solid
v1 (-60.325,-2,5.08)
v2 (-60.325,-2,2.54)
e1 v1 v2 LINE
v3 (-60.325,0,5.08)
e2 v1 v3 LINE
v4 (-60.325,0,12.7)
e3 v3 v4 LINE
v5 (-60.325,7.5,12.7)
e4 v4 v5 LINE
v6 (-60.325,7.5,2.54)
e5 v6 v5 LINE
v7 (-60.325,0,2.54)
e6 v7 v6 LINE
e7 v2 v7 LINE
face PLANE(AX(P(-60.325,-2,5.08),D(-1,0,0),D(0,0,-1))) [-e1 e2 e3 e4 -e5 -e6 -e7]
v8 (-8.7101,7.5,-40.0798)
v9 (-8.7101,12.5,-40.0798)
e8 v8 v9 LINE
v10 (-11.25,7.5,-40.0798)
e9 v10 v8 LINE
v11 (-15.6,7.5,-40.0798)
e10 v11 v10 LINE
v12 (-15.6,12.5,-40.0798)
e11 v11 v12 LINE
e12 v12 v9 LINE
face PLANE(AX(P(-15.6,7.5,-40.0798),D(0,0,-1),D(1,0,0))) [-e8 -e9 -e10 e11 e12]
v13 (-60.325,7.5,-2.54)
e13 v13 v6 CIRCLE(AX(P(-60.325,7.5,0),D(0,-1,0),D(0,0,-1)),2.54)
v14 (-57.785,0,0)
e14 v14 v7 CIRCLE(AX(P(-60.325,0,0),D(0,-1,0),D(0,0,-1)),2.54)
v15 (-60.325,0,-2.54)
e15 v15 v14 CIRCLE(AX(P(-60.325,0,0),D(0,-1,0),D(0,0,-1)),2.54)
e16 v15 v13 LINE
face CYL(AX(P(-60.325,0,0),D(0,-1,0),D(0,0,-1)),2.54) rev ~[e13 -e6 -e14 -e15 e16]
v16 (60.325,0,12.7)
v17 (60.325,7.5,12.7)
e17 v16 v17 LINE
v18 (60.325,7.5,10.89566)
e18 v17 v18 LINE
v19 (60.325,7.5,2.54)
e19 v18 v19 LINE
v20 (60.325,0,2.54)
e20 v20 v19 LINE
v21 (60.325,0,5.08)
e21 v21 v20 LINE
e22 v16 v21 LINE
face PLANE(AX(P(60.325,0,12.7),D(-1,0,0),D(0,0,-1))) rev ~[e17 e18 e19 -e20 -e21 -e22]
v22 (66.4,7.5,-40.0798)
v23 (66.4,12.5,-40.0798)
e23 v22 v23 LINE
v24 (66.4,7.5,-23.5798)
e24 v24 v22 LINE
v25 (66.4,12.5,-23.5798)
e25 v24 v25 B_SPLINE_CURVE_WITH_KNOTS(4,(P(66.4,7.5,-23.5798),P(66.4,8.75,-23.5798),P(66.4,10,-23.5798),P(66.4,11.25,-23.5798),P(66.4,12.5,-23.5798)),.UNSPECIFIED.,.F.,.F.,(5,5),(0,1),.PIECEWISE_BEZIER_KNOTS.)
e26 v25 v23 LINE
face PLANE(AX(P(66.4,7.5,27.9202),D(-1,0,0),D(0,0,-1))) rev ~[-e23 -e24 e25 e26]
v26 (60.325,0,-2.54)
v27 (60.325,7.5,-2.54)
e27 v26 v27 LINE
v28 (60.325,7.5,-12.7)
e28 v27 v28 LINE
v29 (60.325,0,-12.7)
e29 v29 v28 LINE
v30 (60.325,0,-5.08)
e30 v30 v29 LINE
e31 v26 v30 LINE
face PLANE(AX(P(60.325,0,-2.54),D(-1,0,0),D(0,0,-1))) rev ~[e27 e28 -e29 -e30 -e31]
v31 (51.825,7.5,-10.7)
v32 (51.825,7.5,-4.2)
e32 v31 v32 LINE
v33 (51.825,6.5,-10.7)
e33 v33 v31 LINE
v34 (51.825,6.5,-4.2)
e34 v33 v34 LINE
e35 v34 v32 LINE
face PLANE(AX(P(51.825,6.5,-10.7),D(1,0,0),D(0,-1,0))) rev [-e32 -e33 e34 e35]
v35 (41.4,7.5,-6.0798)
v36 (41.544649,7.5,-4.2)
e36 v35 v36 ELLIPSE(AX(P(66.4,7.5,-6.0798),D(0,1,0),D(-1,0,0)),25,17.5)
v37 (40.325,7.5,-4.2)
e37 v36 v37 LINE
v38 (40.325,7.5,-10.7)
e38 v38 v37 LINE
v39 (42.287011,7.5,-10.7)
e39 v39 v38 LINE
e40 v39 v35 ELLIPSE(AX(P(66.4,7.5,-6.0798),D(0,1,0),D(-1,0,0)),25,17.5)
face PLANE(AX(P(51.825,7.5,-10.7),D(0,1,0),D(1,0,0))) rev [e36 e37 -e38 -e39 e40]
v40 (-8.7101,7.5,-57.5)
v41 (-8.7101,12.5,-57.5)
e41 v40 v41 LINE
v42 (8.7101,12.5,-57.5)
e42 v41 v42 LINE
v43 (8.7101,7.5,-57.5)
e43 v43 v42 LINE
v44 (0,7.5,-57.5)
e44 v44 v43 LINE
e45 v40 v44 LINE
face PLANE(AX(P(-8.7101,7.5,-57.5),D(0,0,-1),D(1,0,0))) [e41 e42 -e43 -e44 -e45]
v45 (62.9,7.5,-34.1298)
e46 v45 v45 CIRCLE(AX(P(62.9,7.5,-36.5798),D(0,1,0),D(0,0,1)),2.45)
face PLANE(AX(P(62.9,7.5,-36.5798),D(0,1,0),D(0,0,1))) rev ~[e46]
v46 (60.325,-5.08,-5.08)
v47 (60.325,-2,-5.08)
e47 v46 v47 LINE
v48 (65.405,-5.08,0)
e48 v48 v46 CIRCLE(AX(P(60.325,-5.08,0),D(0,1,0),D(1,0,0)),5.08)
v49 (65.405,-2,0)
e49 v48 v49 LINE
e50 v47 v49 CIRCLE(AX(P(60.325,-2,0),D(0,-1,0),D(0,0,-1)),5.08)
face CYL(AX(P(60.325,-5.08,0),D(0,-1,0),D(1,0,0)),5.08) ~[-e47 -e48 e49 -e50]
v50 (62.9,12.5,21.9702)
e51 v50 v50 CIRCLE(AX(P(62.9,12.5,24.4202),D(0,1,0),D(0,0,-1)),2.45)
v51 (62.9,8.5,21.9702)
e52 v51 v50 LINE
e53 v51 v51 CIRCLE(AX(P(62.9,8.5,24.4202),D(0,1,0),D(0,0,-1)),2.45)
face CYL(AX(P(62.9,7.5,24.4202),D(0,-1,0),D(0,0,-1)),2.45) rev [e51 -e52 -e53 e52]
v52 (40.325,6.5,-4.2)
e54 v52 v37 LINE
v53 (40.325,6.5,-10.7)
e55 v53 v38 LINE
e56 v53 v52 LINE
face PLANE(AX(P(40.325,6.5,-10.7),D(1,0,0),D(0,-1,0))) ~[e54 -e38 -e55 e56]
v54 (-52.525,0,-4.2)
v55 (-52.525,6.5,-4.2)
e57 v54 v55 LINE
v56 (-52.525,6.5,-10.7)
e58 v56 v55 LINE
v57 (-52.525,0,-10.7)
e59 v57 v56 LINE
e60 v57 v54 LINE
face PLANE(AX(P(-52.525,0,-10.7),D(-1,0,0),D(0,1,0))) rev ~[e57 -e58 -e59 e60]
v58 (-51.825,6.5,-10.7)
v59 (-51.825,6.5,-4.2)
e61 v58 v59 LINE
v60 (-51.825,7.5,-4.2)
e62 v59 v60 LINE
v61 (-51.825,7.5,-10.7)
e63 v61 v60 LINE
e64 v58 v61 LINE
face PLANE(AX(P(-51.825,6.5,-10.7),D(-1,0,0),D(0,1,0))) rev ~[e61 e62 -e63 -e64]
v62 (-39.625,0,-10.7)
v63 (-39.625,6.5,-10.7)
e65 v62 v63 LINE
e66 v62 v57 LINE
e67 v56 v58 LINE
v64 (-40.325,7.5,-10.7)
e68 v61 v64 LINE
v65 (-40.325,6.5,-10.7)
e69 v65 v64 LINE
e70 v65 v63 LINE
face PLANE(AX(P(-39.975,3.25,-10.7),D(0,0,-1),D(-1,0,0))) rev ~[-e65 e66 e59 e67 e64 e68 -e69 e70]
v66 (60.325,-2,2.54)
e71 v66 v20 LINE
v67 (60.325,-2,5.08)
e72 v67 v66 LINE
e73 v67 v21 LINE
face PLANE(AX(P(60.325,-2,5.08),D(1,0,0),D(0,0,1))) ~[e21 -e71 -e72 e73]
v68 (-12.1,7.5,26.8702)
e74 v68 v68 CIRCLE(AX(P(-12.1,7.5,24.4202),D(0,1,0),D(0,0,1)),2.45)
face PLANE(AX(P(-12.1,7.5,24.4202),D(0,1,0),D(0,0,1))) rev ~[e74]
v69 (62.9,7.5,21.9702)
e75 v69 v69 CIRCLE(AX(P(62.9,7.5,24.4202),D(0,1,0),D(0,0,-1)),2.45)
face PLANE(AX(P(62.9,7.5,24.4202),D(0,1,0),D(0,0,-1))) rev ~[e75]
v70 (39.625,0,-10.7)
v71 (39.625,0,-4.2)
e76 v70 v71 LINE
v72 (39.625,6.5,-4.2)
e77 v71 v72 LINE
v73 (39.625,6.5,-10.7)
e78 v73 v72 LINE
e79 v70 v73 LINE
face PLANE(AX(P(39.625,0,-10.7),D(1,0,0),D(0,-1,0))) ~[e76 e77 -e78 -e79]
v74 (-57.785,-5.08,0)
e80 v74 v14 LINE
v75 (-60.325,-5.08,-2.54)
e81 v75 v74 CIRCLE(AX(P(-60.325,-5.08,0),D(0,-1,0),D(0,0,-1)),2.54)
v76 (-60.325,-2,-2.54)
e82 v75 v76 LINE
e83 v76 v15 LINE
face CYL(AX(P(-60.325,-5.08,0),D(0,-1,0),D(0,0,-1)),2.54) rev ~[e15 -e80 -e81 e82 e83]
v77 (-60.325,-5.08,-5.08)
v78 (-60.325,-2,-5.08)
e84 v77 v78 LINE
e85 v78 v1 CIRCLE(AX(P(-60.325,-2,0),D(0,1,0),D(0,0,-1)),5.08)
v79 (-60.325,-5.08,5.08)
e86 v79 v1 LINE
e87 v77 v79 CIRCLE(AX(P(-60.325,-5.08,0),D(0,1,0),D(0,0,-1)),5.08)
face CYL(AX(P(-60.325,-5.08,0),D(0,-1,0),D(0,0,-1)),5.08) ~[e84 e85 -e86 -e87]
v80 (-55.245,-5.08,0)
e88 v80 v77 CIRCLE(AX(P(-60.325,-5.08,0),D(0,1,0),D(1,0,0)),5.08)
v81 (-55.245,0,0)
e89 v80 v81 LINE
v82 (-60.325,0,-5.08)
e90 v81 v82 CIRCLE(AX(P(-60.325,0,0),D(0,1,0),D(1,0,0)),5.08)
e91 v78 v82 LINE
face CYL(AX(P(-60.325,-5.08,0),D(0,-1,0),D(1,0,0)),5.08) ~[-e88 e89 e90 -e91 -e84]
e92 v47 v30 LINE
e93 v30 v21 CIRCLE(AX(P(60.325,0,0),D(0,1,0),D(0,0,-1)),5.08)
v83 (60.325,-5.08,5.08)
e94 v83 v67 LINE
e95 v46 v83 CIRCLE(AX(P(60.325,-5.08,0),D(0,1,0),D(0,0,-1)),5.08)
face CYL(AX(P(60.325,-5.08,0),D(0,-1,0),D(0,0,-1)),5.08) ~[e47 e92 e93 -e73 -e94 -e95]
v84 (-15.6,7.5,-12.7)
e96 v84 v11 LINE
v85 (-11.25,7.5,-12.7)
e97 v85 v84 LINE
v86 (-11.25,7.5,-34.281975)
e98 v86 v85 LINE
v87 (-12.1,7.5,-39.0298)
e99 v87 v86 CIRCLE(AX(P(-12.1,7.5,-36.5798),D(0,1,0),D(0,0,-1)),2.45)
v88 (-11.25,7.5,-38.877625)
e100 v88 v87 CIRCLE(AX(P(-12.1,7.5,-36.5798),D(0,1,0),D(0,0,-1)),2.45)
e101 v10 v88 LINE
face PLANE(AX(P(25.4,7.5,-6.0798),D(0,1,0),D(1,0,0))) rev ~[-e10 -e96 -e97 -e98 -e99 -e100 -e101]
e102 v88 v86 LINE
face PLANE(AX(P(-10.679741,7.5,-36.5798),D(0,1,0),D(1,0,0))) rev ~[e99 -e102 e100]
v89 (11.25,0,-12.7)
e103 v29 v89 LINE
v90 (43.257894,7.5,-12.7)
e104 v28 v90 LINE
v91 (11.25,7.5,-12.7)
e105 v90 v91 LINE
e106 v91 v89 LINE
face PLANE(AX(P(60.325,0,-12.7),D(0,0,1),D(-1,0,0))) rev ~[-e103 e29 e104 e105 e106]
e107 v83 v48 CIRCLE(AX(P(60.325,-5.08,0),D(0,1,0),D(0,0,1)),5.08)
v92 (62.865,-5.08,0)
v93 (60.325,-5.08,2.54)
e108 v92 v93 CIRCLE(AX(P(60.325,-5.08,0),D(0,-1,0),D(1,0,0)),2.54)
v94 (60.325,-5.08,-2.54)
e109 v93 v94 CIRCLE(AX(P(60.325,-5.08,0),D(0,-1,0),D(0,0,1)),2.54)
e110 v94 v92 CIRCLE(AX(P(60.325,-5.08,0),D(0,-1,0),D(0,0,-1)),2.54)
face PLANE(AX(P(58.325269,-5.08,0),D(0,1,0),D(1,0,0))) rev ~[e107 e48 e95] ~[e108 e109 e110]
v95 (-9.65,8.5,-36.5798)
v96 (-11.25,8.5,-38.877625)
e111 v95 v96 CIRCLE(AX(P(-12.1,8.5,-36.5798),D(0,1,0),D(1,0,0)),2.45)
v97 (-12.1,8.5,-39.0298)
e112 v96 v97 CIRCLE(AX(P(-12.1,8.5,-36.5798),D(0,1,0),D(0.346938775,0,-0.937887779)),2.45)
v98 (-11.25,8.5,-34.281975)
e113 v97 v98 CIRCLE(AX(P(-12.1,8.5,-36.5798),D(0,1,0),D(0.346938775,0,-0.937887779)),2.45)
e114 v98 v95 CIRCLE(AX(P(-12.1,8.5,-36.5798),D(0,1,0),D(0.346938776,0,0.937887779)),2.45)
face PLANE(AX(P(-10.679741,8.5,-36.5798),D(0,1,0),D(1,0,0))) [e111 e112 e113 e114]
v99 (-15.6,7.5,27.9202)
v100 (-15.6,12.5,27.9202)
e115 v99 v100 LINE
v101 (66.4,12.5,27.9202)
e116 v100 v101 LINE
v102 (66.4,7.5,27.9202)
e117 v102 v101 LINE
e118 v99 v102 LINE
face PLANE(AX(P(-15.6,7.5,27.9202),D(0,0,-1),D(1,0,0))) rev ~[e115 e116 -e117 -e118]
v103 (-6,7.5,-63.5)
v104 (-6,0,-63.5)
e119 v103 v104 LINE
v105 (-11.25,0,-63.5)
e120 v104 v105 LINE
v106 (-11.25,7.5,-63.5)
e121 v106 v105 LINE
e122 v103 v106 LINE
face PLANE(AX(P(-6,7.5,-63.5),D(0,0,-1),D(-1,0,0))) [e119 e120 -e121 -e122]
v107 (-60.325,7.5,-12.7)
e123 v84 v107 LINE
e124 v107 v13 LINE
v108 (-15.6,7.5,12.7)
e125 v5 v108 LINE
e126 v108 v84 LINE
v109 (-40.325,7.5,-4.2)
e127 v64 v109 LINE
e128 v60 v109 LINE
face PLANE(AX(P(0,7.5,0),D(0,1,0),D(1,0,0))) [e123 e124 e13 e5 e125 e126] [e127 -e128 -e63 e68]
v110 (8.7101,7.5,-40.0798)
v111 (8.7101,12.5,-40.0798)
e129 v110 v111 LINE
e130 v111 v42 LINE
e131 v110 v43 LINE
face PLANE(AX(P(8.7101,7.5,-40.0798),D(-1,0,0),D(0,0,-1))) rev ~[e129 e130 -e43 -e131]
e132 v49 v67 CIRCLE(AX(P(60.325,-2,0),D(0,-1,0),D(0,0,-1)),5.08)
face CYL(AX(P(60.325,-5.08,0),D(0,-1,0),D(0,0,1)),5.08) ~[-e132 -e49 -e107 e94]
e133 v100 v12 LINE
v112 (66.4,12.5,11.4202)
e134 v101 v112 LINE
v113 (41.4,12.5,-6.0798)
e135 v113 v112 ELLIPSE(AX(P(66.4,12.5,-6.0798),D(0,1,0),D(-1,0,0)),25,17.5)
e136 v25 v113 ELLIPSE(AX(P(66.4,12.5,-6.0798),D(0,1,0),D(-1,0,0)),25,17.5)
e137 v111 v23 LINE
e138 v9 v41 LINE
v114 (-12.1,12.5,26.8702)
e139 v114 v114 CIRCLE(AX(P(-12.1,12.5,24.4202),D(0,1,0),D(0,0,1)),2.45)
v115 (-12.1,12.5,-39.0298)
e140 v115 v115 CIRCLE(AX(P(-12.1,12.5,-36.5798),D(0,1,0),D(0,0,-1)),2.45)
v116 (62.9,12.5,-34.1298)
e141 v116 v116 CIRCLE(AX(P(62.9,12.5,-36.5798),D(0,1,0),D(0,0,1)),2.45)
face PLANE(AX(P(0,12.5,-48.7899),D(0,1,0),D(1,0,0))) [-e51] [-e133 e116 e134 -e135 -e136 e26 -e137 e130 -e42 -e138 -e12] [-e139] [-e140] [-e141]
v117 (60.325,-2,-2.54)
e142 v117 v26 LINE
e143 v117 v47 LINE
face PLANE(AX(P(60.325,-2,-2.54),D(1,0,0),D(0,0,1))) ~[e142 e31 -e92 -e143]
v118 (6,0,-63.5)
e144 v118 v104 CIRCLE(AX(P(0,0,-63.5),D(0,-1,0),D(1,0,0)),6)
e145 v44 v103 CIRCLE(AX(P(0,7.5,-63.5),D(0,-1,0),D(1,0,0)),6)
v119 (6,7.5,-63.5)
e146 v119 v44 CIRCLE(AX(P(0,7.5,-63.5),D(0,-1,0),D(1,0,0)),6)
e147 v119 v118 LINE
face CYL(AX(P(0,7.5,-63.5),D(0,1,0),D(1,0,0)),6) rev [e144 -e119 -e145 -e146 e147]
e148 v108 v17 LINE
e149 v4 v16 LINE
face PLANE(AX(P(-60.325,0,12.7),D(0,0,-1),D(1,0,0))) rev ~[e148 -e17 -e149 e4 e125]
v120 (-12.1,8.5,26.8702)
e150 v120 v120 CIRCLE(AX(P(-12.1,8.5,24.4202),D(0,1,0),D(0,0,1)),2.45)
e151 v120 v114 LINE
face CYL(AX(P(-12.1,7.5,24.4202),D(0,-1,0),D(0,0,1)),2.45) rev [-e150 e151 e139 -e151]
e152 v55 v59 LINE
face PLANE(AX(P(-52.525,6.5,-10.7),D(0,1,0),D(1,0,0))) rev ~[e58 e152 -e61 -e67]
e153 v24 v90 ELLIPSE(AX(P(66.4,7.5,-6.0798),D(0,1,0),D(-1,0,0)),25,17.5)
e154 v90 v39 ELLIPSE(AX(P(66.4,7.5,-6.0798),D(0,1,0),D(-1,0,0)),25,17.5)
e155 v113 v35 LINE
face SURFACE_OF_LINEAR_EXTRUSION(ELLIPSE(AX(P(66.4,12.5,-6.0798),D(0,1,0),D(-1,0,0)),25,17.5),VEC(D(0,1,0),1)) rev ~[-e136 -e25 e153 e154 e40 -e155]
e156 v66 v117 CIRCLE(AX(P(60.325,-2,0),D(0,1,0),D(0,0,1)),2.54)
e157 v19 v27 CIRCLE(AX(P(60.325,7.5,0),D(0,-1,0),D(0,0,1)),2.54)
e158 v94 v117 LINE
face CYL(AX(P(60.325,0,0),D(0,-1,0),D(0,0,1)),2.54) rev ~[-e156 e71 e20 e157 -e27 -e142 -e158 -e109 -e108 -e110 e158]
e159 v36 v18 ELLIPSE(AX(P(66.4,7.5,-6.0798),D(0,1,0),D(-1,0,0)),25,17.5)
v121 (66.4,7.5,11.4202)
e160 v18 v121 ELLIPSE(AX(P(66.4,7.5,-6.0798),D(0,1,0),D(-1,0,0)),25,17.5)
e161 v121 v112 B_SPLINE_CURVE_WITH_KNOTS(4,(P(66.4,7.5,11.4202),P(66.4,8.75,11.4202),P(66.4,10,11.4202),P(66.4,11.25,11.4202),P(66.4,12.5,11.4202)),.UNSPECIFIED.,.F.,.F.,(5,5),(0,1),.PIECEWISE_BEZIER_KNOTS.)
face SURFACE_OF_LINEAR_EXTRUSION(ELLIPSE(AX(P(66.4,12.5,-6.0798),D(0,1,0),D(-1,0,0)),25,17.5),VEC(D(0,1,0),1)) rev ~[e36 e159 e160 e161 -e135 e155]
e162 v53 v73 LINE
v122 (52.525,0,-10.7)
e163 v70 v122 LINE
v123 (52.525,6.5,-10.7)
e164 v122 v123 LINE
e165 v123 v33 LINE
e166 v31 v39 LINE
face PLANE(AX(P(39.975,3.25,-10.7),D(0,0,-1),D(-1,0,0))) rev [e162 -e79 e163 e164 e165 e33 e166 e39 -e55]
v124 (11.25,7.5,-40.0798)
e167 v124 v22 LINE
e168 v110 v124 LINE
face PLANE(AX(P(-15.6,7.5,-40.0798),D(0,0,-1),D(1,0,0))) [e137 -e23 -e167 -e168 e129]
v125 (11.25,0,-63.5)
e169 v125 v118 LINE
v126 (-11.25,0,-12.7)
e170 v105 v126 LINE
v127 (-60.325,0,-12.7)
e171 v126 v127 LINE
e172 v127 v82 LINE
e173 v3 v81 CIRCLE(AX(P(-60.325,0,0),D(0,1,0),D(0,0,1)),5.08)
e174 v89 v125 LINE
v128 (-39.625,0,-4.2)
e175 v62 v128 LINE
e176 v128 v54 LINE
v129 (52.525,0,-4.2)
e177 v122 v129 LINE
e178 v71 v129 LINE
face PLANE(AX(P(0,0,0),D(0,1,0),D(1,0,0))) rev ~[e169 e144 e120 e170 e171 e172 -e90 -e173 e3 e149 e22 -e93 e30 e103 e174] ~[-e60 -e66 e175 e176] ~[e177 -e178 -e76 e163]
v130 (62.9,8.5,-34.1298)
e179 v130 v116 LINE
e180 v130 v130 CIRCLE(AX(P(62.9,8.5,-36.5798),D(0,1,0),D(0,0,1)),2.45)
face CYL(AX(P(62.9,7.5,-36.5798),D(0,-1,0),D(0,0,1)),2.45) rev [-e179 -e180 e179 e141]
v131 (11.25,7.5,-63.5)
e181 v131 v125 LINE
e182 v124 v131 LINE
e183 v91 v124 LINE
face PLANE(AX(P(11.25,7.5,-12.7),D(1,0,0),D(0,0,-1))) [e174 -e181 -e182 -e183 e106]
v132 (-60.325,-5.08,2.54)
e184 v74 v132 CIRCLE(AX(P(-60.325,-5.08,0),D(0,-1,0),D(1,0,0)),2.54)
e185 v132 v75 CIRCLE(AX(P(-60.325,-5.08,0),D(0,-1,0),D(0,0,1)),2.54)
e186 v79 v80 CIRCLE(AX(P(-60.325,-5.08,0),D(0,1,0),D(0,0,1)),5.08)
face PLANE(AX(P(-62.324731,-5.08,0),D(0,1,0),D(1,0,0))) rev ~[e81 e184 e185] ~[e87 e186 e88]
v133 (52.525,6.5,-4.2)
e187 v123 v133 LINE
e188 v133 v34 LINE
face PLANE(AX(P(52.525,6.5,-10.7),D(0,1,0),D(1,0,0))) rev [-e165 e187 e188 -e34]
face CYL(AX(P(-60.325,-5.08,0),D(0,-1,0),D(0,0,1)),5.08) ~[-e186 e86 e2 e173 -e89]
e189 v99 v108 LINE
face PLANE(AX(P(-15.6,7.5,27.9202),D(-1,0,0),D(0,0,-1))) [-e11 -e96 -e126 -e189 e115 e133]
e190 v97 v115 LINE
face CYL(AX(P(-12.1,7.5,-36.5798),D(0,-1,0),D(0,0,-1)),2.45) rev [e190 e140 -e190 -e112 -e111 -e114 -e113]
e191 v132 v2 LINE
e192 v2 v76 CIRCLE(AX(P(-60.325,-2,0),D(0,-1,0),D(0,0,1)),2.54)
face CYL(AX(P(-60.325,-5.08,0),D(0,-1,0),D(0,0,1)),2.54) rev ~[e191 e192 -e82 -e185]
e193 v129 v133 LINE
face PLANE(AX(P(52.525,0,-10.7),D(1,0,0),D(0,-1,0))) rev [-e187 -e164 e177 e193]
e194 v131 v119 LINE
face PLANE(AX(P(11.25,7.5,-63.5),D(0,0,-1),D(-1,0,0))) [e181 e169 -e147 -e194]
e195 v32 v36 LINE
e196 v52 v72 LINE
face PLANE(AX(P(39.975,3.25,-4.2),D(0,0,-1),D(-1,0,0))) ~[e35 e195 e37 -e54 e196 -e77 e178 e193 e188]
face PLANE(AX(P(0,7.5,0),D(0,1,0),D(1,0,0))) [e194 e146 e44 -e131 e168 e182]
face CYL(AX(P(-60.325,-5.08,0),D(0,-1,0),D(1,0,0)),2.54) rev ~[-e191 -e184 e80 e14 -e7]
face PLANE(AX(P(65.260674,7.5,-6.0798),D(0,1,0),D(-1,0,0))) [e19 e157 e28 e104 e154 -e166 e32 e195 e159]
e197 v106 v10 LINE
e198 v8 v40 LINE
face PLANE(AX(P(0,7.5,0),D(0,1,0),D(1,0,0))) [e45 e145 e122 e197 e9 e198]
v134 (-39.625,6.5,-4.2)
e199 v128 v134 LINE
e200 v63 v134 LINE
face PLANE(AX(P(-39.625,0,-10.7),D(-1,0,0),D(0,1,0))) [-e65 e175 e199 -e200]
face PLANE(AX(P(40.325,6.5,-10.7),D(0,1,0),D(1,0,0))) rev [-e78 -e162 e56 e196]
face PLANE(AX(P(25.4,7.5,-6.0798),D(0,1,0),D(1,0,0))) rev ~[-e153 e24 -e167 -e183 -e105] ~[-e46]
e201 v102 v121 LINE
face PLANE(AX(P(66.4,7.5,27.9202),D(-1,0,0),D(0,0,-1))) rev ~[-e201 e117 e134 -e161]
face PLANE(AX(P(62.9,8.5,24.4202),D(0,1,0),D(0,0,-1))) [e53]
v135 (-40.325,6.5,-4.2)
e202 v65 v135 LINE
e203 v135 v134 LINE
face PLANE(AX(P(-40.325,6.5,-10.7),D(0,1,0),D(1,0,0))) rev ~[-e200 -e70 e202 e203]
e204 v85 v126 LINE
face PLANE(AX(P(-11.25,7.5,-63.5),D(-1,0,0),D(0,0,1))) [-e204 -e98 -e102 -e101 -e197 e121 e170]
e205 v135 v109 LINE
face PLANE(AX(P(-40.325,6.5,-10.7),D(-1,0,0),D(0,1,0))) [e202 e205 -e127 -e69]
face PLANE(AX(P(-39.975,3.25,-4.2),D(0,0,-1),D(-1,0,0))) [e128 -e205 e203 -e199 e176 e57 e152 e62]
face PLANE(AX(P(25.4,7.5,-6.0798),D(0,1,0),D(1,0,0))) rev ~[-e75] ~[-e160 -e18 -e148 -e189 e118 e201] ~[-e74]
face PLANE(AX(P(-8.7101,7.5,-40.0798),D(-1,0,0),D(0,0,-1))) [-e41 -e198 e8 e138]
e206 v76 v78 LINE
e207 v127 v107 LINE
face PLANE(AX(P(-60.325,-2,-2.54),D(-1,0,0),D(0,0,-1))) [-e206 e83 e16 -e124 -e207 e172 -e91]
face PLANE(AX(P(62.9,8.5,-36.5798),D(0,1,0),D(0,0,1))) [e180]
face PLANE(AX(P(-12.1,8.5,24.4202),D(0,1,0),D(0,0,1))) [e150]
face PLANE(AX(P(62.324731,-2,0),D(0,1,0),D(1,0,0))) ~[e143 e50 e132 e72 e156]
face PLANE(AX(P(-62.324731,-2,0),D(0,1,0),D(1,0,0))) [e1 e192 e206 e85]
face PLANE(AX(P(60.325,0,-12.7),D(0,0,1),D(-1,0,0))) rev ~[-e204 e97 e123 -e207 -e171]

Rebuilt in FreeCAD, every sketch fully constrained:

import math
import FreeCAD as App
import Part
import Sketcher
Q = App.Units.Quantity

doc = App.newDocument("Part")
body = doc.addObject("PartDesign::Body", "Body")

sketch1 = body.newObject("Sketcher::SketchObject", "Sketch")
sketch1.AttachmentSupport = (doc.getObject("XZ_Plane"), [""])
sketch1.MapMode = "FlatFace"
sketch1.addGeometry([
    Part.LineSegment(App.Vector(-60.3, 12.7, 0), App.Vector(60.3, 12.7, 0)),
    Part.LineSegment(App.Vector(60.3, 12.7, 0), App.Vector(60.3, 2.5, 0)),
    Part.ArcOfCircle(Part.Circle(App.Vector(60.3, 0, 0), App.Vector(0, 0, 1), 2.5), math.radians(90), math.radians(270)),
    Part.LineSegment(App.Vector(60.3, -2.5, 0), App.Vector(60.3, -12.7, 0)),
    Part.LineSegment(App.Vector(60.3, -12.7, 0), App.Vector(-60.3, -12.7, 0)),
    Part.LineSegment(App.Vector(-60.3, -12.7, 0), App.Vector(-60.3, -2.5, 0)),
    Part.ArcOfCircle(Part.Circle(App.Vector(-60.3, 0, 0), App.Vector(0, 0, 1), 2.5), math.radians(-90), math.radians(90)),
    Part.LineSegment(App.Vector(-60.3, 2.5, 0), App.Vector(-60.3, 12.7, 0)),
], False)
sketch1.addConstraint([
    Sketcher.Constraint("Coincident", 0, 2, 1, 1),
    Sketcher.Constraint("Coincident", 1, 2, 2, 1),
    Sketcher.Constraint("Coincident", 2, 2, 3, 1),
    Sketcher.Constraint("Coincident", 3, 2, 4, 1),
    Sketcher.Constraint("Coincident", 4, 2, 5, 1),
    Sketcher.Constraint("Coincident", 5, 2, 6, 1),
    Sketcher.Constraint("Coincident", 6, 2, 7, 1),
    Sketcher.Constraint("Coincident", 7, 2, 0, 1),
    Sketcher.Constraint("Horizontal", 0),
    Sketcher.Constraint("Vertical", 1),
    Sketcher.Constraint("Vertical", 3),
    Sketcher.Constraint("Horizontal", 4),
    Sketcher.Constraint("Vertical", 5),
    Sketcher.Constraint("Vertical", 7),
    Sketcher.Constraint("Equal", 2, 6),
    Sketcher.Constraint("Symmetric", 2, 3, 6, 3, -1, 1),
    Sketcher.Constraint("Symmetric", 0, 2, 4, 2, -1, 1),
    Sketcher.Constraint("Symmetric", 2, 2, 5, 2, -2),
    Sketcher.Constraint("Vertical", 2, 3, 0, 2),
    Sketcher.Constraint("Vertical", 5, 2, 6, 2),
    Sketcher.Constraint("Radius", 2, Q("2.54 mm")),
    Sketcher.Constraint("DistanceX", 0, 1, 0, 2, Q("120.65 mm")),
    Sketcher.Constraint("DistanceY", 1, 2, 1, 1, Q("10.16 mm")),
])
pad1 = body.newObject("PartDesign::Pad", "Pad")
pad1.Profile = sketch1
pad1.Length = 7.5
pad1.Reversed = True

sketch2 = body.newObject("Sketcher::SketchObject", "Sketch001")
sketch2.AttachmentSupport = (doc.getObject("XZ_Plane"), [""])
sketch2.MapMode = "FlatFace"
sketch2.AttachmentOffset = App.Placement(App.Vector(0, 0, -7.5), App.Rotation())
sketch2.addGeometry([
    Part.LineSegment(App.Vector(-11, -64, 0), App.Vector(-11, -13, 0)),
    Part.LineSegment(App.Vector(-11, -13, 0), App.Vector(11, -13, 0)),
    Part.LineSegment(App.Vector(11, -13, 0), App.Vector(11, -64, 0)),
    Part.LineSegment(App.Vector(11, -64, 0), App.Vector(6, -64, 0)),
    Part.ArcOfCircle(Part.Circle(App.Vector(0, -64, 0), App.Vector(0, 0, 1), 6), math.radians(0), math.radians(180)),
    Part.LineSegment(App.Vector(-6, -64, 0), App.Vector(-11, -64, 0)),
], False)
sketch2.addConstraint([
    Sketcher.Constraint("Coincident", 0, 2, 1, 1),
    Sketcher.Constraint("Coincident", 1, 2, 2, 1),
    Sketcher.Constraint("Coincident", 2, 2, 3, 1),
    Sketcher.Constraint("Coincident", 3, 2, 4, 1),
    Sketcher.Constraint("Coincident", 4, 2, 5, 1),
    Sketcher.Constraint("Coincident", 5, 2, 0, 1),
    Sketcher.Constraint("Vertical", 0),
    Sketcher.Constraint("Horizontal", 1),
    Sketcher.Constraint("Vertical", 2),
    Sketcher.Constraint("Horizontal", 3),
    Sketcher.Constraint("Horizontal", 5),
    Sketcher.Constraint("Symmetric", 3, 2, 4, 2, -2),
    Sketcher.Constraint("Horizontal", 4, 3, 2, 2),
    Sketcher.Constraint("Equal", 3, 5),
    Sketcher.Constraint("Radius", 4, Q("6 mm")),
    Sketcher.Constraint("DistanceX", 1, 1, 1, 2, Q("22.5 mm")),
    Sketcher.Constraint("DistanceY", 0, 1, 0, 2, Q("50.8 mm")),
    Sketcher.Constraint("DistanceY", 4, 3, -1, 1, Q("63.5 mm")),
])
pad2 = body.newObject("PartDesign::Pad", "Pad001")
pad2.Profile = sketch2
pad2.Length = 7.5

sketch3 = body.newObject("Sketcher::SketchObject", "Sketch002")
sketch3.AttachmentSupport = (doc.getObject("XZ_Plane"), [""])
sketch3.MapMode = "FlatFace"
sketch3.AttachmentOffset = App.Placement(App.Vector(0, 0, -7.5), App.Rotation())
sketch3.addGeometry([
    Part.LineSegment(App.Vector(-15.6, -40.1, 0), App.Vector(-15.6, 27.9, 0)),
    Part.LineSegment(App.Vector(-15.6, 27.9, 0), App.Vector(66.4, 27.9, 0)),
    Part.LineSegment(App.Vector(66.4, 27.9, 0), App.Vector(66.4, -40.1, 0)),
    Part.LineSegment(App.Vector(66.4, -40.1, 0), App.Vector(-15.6, -40.1, 0)),
    Part.Circle(App.Vector(-12.1, 24.4, 0), App.Vector(0, 0, 1), 2.5),
    Part.Circle(App.Vector(62.9, 24.4, 0), App.Vector(0, 0, 1), 2.5),
    Part.Circle(App.Vector(-12.1, -36.6, 0), App.Vector(0, 0, 1), 2.5),
    Part.Circle(App.Vector(62.9, -36.6, 0), App.Vector(0, 0, 1), 2.5),
], False)
sketch3.addConstraint([
    Sketcher.Constraint("Coincident", 0, 2, 1, 1),
    Sketcher.Constraint("Coincident", 1, 2, 2, 1),
    Sketcher.Constraint("Coincident", 2, 2, 3, 1),
    Sketcher.Constraint("Coincident", 3, 2, 0, 1),
    Sketcher.Constraint("Vertical", 0),
    Sketcher.Constraint("Horizontal", 1),
    Sketcher.Constraint("Vertical", 2),
    Sketcher.Constraint("Horizontal", 3),
    Sketcher.Constraint("Equal", 4, 5),
    Sketcher.Constraint("Equal", 5, 6),
    Sketcher.Constraint("Equal", 6, 7),
    Sketcher.Constraint("Horizontal", 4, 3, 5, 3),
    Sketcher.Constraint("Horizontal", 6, 3, 7, 3),
    Sketcher.Constraint("Vertical", 4, 3, 6, 3),
    Sketcher.Constraint("Vertical", 5, 3, 7, 3),
    Sketcher.Constraint("Diameter", 4, Q("4.9 mm")),
    Sketcher.Constraint("DistanceX", 1, 1, 1, 2, Q("82 mm")),
    Sketcher.Constraint("DistanceY", 0, 1, 0, 2, Q("68 mm")),
    Sketcher.Constraint("DistanceX", 4, 3, 5, 3, Q("75 mm")),
    Sketcher.Constraint("DistanceY", 6, 3, 4, 3, Q("61 mm")),
    Sketcher.Constraint("DistanceX", 4, 3, -1, 1, Q("12.1 mm")),
    Sketcher.Constraint("DistanceX", 0, 2, -1, 1, Q("15.6 mm")),
    Sketcher.Constraint("DistanceY", 4, 3, 0, 2, Q("3.5 mm")),
    Sketcher.Constraint("DistanceY", -1, 1, 4, 3, Q("24.4202 mm")),
])
pad3 = body.newObject("PartDesign::Pad", "Pad002")
pad3.Profile = sketch3
pad3.Length = 5
pad3.Reversed = True

sketch4 = body.newObject("Sketcher::SketchObject", "Sketch003")
sketch4.AttachmentSupport = (doc.getObject("XZ_Plane"), [""])
sketch4.MapMode = "FlatFace"
sketch4.AttachmentOffset = App.Placement(App.Vector(0, 0, -7.5), App.Rotation())
sketch4.addGeometry([
    Part.LineSegment(App.Vector(-9, -58, 0), App.Vector(-9, -40, 0)),
    Part.LineSegment(App.Vector(-9, -40, 0), App.Vector(9, -40, 0)),
    Part.LineSegment(App.Vector(9, -40, 0), App.Vector(9, -58, 0)),
    Part.LineSegment(App.Vector(9, -58, 0), App.Vector(-9, -58, 0)),
], False)
sketch4.addConstraint([
    Sketcher.Constraint("Coincident", 0, 2, 1, 1),
    Sketcher.Constraint("Coincident", 1, 2, 2, 1),
    Sketcher.Constraint("Coincident", 2, 2, 3, 1),
    Sketcher.Constraint("Coincident", 3, 2, 0, 1),
    Sketcher.Constraint("Vertical", 0),
    Sketcher.Constraint("Horizontal", 1),
    Sketcher.Constraint("Vertical", 2),
    Sketcher.Constraint("Horizontal", 3),
    Sketcher.Constraint("Equal", 3, 0),
    Sketcher.Constraint("DistanceY", 2, 2, -1, 1, Q("57.5 mm")),
    Sketcher.Constraint("DistanceX", 1, 1, 1, 2, Q("17.4202 mm")),
    Sketcher.Constraint("DistanceX", 0, 2, -1, 1, Q("8.7101 mm")),
])
pad4 = body.newObject("PartDesign::Pad", "Pad003")
pad4.Profile = sketch4
pad4.Length = 5
pad4.Reversed = True

sketch5 = body.newObject("Sketcher::SketchObject", "Sketch004")
sketch5.AttachmentSupport = (doc.getObject("XZ_Plane"), [""])
sketch5.MapMode = "FlatFace"
sketch5.AttachmentOffset = App.Placement(App.Vector(0, 0, 5.08), App.Rotation())
sketch5.addGeometry([
    Part.ArcOfCircle(Part.Circle(App.Vector(-60.3, 0, 0), App.Vector(0, 0, 1), 5.1), math.radians(90), math.radians(270)),
    Part.ArcOfCircle(Part.Circle(App.Vector(-60.3, 0, 0), App.Vector(0, 0, 1), 5.1), math.radians(0), math.radians(90)),
    Part.ArcOfCircle(Part.Circle(App.Vector(-60.3, 0, 0), App.Vector(0, 0, 1), 5.1), math.radians(-90), math.radians(0)),
    Part.ArcOfCircle(Part.Circle(App.Vector(-60.3, 0, 0), App.Vector(0, 0, 1), 2.5), math.radians(90), math.radians(270)),
    Part.ArcOfCircle(Part.Circle(App.Vector(-60.3, 0, 0), App.Vector(0, 0, 1), 2.5), math.radians(-90), math.radians(0)),
    Part.ArcOfCircle(Part.Circle(App.Vector(-60.3, 0, 0), App.Vector(0, 0, 1), 2.5), math.radians(0), math.radians(90)),
    Part.ArcOfCircle(Part.Circle(App.Vector(60.3, 0, 0), App.Vector(0, 0, 1), 5.1), math.radians(90), math.radians(270)),
    Part.ArcOfCircle(Part.Circle(App.Vector(60.3, 0, 0), App.Vector(0, 0, 1), 5.1), math.radians(0), math.radians(90)),
    Part.ArcOfCircle(Part.Circle(App.Vector(60.3, 0, 0), App.Vector(0, 0, 1), 5.1), math.radians(-90), math.radians(0)),
    Part.ArcOfCircle(Part.Circle(App.Vector(60.3, 0, 0), App.Vector(0, 0, 1), 2.5), math.radians(90), math.radians(270)),
    Part.ArcOfCircle(Part.Circle(App.Vector(60.3, 0, 0), App.Vector(0, 0, 1), 2.5), math.radians(-90), math.radians(0)),
    Part.ArcOfCircle(Part.Circle(App.Vector(60.3, 0, 0), App.Vector(0, 0, 1), 2.5), math.radians(0), math.radians(90)),
], False)
sketch5.addConstraint([
    Sketcher.Constraint("Tangent", 0, 1, 1, 2),
    Sketcher.Constraint("Tangent", 1, 1, 2, 2),
    Sketcher.Constraint("Tangent", 2, 1, 0, 2),
    Sketcher.Constraint("Tangent", 3, 2, 4, 1),
    Sketcher.Constraint("Tangent", 4, 2, 5, 1),
    Sketcher.Constraint("Tangent", 5, 2, 3, 1),
    Sketcher.Constraint("Tangent", 6, 1, 7, 2),
    Sketcher.Constraint("Tangent", 7, 1, 8, 2),
    Sketcher.Constraint("Tangent", 8, 1, 6, 2),
    Sketcher.Constraint("Tangent", 9, 2, 10, 1),
    Sketcher.Constraint("Tangent", 10, 2, 11, 1),
    Sketcher.Constraint("Tangent", 11, 2, 9, 1),
    Sketcher.Constraint("Coincident", 3, 3, 0, 3),
    Sketcher.Constraint("Coincident", 9, 3, 6, 3),
    Sketcher.Constraint("Equal", 2, 6),
    Sketcher.Constraint("Equal", 5, 9),
    Sketcher.Constraint("Symmetric", 0, 3, 6, 3, -1, 1),
    Sketcher.Constraint("Symmetric", 0, 1, 6, 1, -2),
    Sketcher.Constraint("PointOnObject", 1, 1, -1),
    Sketcher.Constraint("PointOnObject", 4, 2, -1),
    Sketcher.Constraint("PointOnObject", 7, 1, -1),
    Sketcher.Constraint("PointOnObject", 10, 2, -1),
    Sketcher.Constraint("Vertical", 5, 3, 0, 1),
    Sketcher.Constraint("Vertical", 0, 1, 2, 1),
    Sketcher.Constraint("Vertical", 2, 1, 3, 2),
    Sketcher.Constraint("Vertical", 3, 2, 5, 2),
    Sketcher.Constraint("Vertical", 6, 1, 8, 1),
    Sketcher.Constraint("Vertical", 8, 1, 9, 2),
    Sketcher.Constraint("Vertical", 9, 2, 11, 2),
    Sketcher.Constraint("Radius", 0, Q("5.08 mm")),
    Sketcher.Constraint("Radius", 3, Q("2.54 mm")),
    Sketcher.Constraint("DistanceX", 0, 3, 6, 3, Q("120.65 mm")),
])
pad5 = body.newObject("PartDesign::Pad", "Pad004")
pad5.Profile = sketch5
pad5.Length = 5.08
pad5.Reversed = True

sketch6 = body.newObject("Sketcher::SketchObject", "Sketch005")
sketch6.AttachmentSupport = (doc.getObject("XZ_Plane"), [""])
sketch6.MapMode = "FlatFace"
sketch6.AttachmentOffset = App.Placement(App.Vector(0, 0, 2), App.Rotation())
sketch6.addGeometry([
    Part.ArcOfCircle(Part.Circle(App.Vector(-60.3, 0, 0), App.Vector(0, 0, 1), 5.1), math.radians(90), math.radians(270)),
    Part.LineSegment(App.Vector(-60.3, 5.1, 0), App.Vector(-60.3, 2.5, 0)),
    Part.ArcOfCircle(Part.Circle(App.Vector(-60.3, 0, 0), App.Vector(0, 0, 1), 2.5), math.radians(90), math.radians(270)),
    Part.LineSegment(App.Vector(-60.3, -2.5, 0), App.Vector(-60.3, -5.1, 0)),
], False)
sketch6.addConstraint([
    Sketcher.Constraint("Coincident", 0, 1, 1, 1),
    Sketcher.Constraint("Coincident", 1, 2, 2, 1),
    Sketcher.Constraint("Coincident", 2, 2, 3, 1),
    Sketcher.Constraint("Coincident", 3, 2, 0, 2),
    Sketcher.Constraint("Vertical", 1),
    Sketcher.Constraint("Vertical", 3),
    Sketcher.Constraint("Coincident", 2, 3, 0, 3),
    Sketcher.Constraint("Symmetric", 1, 2, 2, 2, -1),
    Sketcher.Constraint("Vertical", 2, 3, 0, 1),
    Sketcher.Constraint("Radius", 0, Q("5.08 mm")),
    Sketcher.Constraint("Radius", 2, Q("2.54 mm")),
    Sketcher.Constraint("DistanceX", 0, 3, -1, 1, Q("60.325 mm")),
])
pocket1 = body.newObject("PartDesign::Pocket", "Pocket")
pocket1.Profile = sketch6
pocket1.Length = 2
doc.recompute()

mirrored = body.newObject("PartDesign::Mirrored", "Mirrored")
mirrored.Originals = [pocket1]
mirrored.MirrorPlane = (doc.getObject("YZ_Plane"), [""])
body.Tip = mirrored

sketch7 = body.newObject("Sketcher::SketchObject", "Sketch006")
sketch7.AttachmentSupport = (doc.getObject("XZ_Plane"), [""])
sketch7.MapMode = "FlatFace"
sketch7.AttachmentOffset = App.Placement(App.Vector(0, 0, -7.5), App.Rotation())
sketch7.addGeometry([
    Part.Circle(App.Vector(-12.1, 24.4, 0), App.Vector(0, 0, 1), 2.5),
    Part.ArcOfCircle(Part.Circle(App.Vector(-12.1, -36.6, 0), App.Vector(0, 0, 1), 2.5), math.radians(-70), math.radians(0)),
    Part.ArcOfCircle(Part.Circle(App.Vector(-12.1, -36.6, 0), App.Vector(0, 0, 1), 2.5), math.radians(70), math.radians(290)),
    Part.ArcOfCircle(Part.Circle(App.Vector(-12.1, -36.6, 0), App.Vector(0, 0, 1), 2.5), math.radians(0), math.radians(70)),
    Part.Circle(App.Vector(62.9, -36.6, 0), App.Vector(0, 0, 1), 2.5),
    Part.Circle(App.Vector(62.9, 24.4, 0), App.Vector(0, 0, 1), 2.5),
], False)
sketch7.addConstraint([
    Sketcher.Constraint("Tangent", 1, 1, 2, 2),
    Sketcher.Constraint("Tangent", 2, 1, 3, 2),
    Sketcher.Constraint("Tangent", 3, 1, 1, 2),
    Sketcher.Constraint("Equal", 0, 1),
    Sketcher.Constraint("Equal", 3, 4),
    Sketcher.Constraint("Equal", 4, 5),
    Sketcher.Constraint("Horizontal", 3, 3, 4, 3),
    Sketcher.Constraint("Horizontal", 0, 3, 5, 3),
    Sketcher.Constraint("Horizontal", 4, 3, 3, 1),
    Sketcher.Constraint("Vertical", 0, 3, 1, 3),
    Sketcher.Constraint("Vertical", 4, 3, 5, 3),
    Sketcher.Constraint("Vertical", 1, 1, 2, 1),
    Sketcher.Constraint("Diameter", 0, Q("4.9 mm")),
    Sketcher.Constraint("DistanceY", 1, 3, 0, 3, Q("61 mm")),
    Sketcher.Constraint("DistanceX", 2, 3, 4, 3, Q("75 mm")),
    Sketcher.Constraint("DistanceX", 0, 3, -1, 1, Q("12.1 mm")),
    Sketcher.Constraint("DistanceX", 2, 1, 3, 1, Q("1.6 mm")),
    Sketcher.Constraint("DistanceY", -1, 1, 0, 3, Q("24.4202 mm")),
])
pad6 = body.newObject("PartDesign::Pad", "Pad005")
pad6.Profile = sketch7
pad6.Length = 1
pad6.Reversed = True

sketch8 = body.newObject("Sketcher::SketchObject", "Sketch007")
sketch8.AttachmentSupport = (doc.getObject("XZ_Plane"), [""])
sketch8.MapMode = "FlatFace"
sketch8.AttachmentOffset = App.Placement(App.Vector(0, 0, -12.5), App.Rotation())
sketch8.addGeometry(Part.Ellipse(App.Vector(41.4, -6.0798, 0), App.Vector(66.4, -23.5798, 0), App.Vector(66.4, -6.0798, 0)), False)
sketch8.addConstraint(Sketcher.Constraint("Block", 0))
pocket2 = body.newObject("PartDesign::Pocket", "Pocket001")
pocket2.Profile = sketch8
pocket2.Length = 5
pocket2.Reversed = True

sketch9 = body.newObject("Sketcher::SketchObject", "Sketch008")
sketch9.AttachmentSupport = (doc.getObject("XY_Plane"), [""])
sketch9.MapMode = "FlatFace"
sketch9.AttachmentOffset = App.Placement(App.Vector(0, 0, -10.7), App.Rotation())
sketch9.addGeometry([
    Part.LineSegment(App.Vector(-39.6, 6.5, 0), App.Vector(-39.6, 0, 0)),
    Part.LineSegment(App.Vector(-39.6, 0, 0), App.Vector(-52.5, 0, 0)),
    Part.LineSegment(App.Vector(-52.5, 0, 0), App.Vector(-52.5, 6.5, 0)),
    Part.LineSegment(App.Vector(-52.5, 6.5, 0), App.Vector(-51.8, 6.5, 0)),
    Part.LineSegment(App.Vector(-51.8, 6.5, 0), App.Vector(-51.8, 7.5, 0)),
    Part.LineSegment(App.Vector(-51.8, 7.5, 0), App.Vector(-40.3, 7.5, 0)),
    Part.LineSegment(App.Vector(-40.3, 7.5, 0), App.Vector(-40.3, 6.5, 0)),
    Part.LineSegment(App.Vector(-40.3, 6.5, 0), App.Vector(-39.6, 6.5, 0)),
], False)
sketch9.addConstraint([
    Sketcher.Constraint("Coincident", 0, 2, 1, 1),
    Sketcher.Constraint("Coincident", 1, 2, 2, 1),
    Sketcher.Constraint("Coincident", 2, 2, 3, 1),
    Sketcher.Constraint("Coincident", 3, 2, 4, 1),
    Sketcher.Constraint("Coincident", 4, 2, 5, 1),
    Sketcher.Constraint("Coincident", 5, 2, 6, 1),
    Sketcher.Constraint("Coincident", 6, 2, 7, 1),
    Sketcher.Constraint("Coincident", 7, 2, 0, 1),
    Sketcher.Constraint("Vertical", 0),
    Sketcher.Constraint("Horizontal", 1),
    Sketcher.Constraint("Vertical", 2),
    Sketcher.Constraint("Horizontal", 3),
    Sketcher.Constraint("Vertical", 4),
    Sketcher.Constraint("Horizontal", 5),
    Sketcher.Constraint("Vertical", 6),
    Sketcher.Constraint("Horizontal", 7),
    Sketcher.Constraint("PointOnObject", 0, 2, -1),
    Sketcher.Constraint("Horizontal", 3, 2, 6, 2),
    Sketcher.Constraint("Equal", 3, 7),
    Sketcher.Constraint("DistanceY", 4, 1, 4, 2, Q("1 mm")),
    Sketcher.Constraint("DistanceX", 1, 2, 1, 1, Q("12.9 mm")),
    Sketcher.Constraint("DistanceX", 3, 1, 3, 2, Q("0.7 mm")),
    Sketcher.Constraint("DistanceY", 0, 2, 0, 1, Q("6.5 mm")),
    Sketcher.Constraint("DistanceX", 0, 2, -1, 1, Q("39.625 mm")),
])
pocket3 = body.newObject("PartDesign::Pocket", "Pocket002")
pocket3.Profile = sketch9
pocket3.Length = 6.5
pocket3.Reversed = True
doc.recompute()

mirrored2 = body.newObject("PartDesign::Mirrored", "Mirrored001")
mirrored2.Originals = [pocket3]
mirrored2.MirrorPlane = (doc.getObject("YZ_Plane"), [""])
body.Tip = mirrored2

doc.recompute()
